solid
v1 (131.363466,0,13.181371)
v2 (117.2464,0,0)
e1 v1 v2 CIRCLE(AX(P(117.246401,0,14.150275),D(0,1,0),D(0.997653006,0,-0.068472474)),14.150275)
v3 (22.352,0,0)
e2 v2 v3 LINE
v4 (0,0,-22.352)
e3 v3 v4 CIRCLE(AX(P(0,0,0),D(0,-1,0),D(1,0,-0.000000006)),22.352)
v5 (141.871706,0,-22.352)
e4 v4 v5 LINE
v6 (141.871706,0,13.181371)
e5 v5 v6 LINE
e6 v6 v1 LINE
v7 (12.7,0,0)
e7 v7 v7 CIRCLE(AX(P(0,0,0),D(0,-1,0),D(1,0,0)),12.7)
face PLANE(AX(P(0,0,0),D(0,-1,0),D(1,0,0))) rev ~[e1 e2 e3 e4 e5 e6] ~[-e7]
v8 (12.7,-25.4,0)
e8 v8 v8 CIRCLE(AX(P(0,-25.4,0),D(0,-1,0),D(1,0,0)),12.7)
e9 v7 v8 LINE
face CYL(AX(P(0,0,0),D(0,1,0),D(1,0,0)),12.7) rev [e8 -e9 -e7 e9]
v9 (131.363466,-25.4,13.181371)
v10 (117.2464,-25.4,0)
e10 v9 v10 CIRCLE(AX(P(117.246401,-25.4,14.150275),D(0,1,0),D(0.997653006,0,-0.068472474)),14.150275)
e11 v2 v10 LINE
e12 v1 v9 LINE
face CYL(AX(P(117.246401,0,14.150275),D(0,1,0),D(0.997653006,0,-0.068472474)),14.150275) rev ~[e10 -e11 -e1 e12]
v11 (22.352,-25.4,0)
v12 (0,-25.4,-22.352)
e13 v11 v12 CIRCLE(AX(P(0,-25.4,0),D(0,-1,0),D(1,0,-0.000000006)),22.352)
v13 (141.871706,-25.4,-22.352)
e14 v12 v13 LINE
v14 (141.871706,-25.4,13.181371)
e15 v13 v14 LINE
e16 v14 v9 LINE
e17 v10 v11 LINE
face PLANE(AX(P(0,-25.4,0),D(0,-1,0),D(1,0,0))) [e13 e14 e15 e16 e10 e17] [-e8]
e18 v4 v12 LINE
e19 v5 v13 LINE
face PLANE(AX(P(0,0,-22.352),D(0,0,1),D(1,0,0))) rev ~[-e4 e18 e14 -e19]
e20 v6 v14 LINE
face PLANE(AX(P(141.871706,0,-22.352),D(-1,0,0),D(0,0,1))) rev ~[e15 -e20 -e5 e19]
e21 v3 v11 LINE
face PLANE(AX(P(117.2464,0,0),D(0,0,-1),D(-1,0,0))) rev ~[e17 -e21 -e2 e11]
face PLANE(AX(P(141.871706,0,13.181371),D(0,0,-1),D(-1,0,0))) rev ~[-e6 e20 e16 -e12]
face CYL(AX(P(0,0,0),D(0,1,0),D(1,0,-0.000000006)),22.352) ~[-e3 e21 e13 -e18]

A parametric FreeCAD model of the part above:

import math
import FreeCAD as App
import Part
import Sketcher
Q = App.Units.Quantity

doc = App.newDocument("Part")
body = doc.addObject("PartDesign::Body", "Body")

# Sketch on XZ plane
sketch1 = body.newObject("Sketcher::SketchObject", "Sketch")
sketch1.AttachmentSupport = (doc.getObject("XZ_Plane"), [""])
sketch1.MapMode = "FlatFace"
sketch1.addGeometry(Part.ArcOfCircle(Part.Circle(App.Vector(0, 0, 0), App.Vector(0, 0, 1), 22), math.radians(0), math.radians(270)), False)
sketch1.addGeometry(Part.LineSegment(App.Vector(0, -22, 0), App.Vector(142, -22, 0)), False)
sketch1.addGeometry(Part.LineSegment(App.Vector(142, -22, 0), App.Vector(142, 13, 0)), False)
sketch1.addGeometry(Part.LineSegment(App.Vector(142, 13, 0), App.Vector(131, 13, 0)), False)
sketch1.addGeometry(Part.ArcOfCircle(Part.Circle(App.Vector(117, 14, 0), App.Vector(0, 0, 1), 14), math.radians(-90), math.radians(-4)), False)
sketch1.addGeometry(Part.LineSegment(App.Vector(117, 0, 0), App.Vector(22, 0, 0)), False)
sketch1.addGeometry(Part.Circle(App.Vector(0, 0, 0), App.Vector(0, 0, 1), 13), False)
sketch1.addConstraint(Sketcher.Constraint("Tangent", 0, 2, 1, 1))
sketch1.addConstraint(Sketcher.Constraint("Coincident", 1, 2, 2, 1))
sketch1.addConstraint(Sketcher.Constraint("Coincident", 2, 2, 3, 1))
sketch1.addConstraint(Sketcher.Constraint("Coincident", 3, 2, 4, 2))
sketch1.addConstraint(Sketcher.Constraint("Tangent", 4, 1, 5, 1))
sketch1.addConstraint(Sketcher.Constraint("Coincident", 5, 2, 0, 1))
sketch1.addConstraint(Sketcher.Constraint("Horizontal", 1))
sketch1.addConstraint(Sketcher.Constraint("Vertical", 2))
sketch1.addConstraint(Sketcher.Constraint("Horizontal", 3))
sketch1.addConstraint(Sketcher.Constraint("Horizontal", 5))
sketch1.addConstraint(Sketcher.Constraint("Coincident", 0, 3, -1, 1))
sketch1.addConstraint(Sketcher.Constraint("Coincident", 6, 3, -1, 1))
sketch1.addConstraint(Sketcher.Constraint("PointOnObject", 4, 1, -1))
sketch1.addConstraint(Sketcher.Constraint("Diameter", 6, Q("1 in")))
sketch1.addConstraint(Sketcher.Constraint("Radius", 0, Q("0.88 in")))
sketch1.addConstraint(Sketcher.Constraint("DistanceX", 5, 2, 5, 1, Q("3.736 in")))
sketch1.addConstraint(Sketcher.Constraint("Radius", 4, Q("14.150275 mm")))
sketch1.addConstraint(Sketcher.Constraint("DistanceX", 4, 3, 1, 2, Q("0.9695002 in")))
sketch1.addConstraint(Sketcher.Constraint("DistanceX", 3, 2, 3, 1, Q("10.50824 mm")))
pad1 = body.newObject("PartDesign::Pad", "Pad")
pad1.Profile = sketch1
pad1.Length = Q("1 in")

doc.recompute()
